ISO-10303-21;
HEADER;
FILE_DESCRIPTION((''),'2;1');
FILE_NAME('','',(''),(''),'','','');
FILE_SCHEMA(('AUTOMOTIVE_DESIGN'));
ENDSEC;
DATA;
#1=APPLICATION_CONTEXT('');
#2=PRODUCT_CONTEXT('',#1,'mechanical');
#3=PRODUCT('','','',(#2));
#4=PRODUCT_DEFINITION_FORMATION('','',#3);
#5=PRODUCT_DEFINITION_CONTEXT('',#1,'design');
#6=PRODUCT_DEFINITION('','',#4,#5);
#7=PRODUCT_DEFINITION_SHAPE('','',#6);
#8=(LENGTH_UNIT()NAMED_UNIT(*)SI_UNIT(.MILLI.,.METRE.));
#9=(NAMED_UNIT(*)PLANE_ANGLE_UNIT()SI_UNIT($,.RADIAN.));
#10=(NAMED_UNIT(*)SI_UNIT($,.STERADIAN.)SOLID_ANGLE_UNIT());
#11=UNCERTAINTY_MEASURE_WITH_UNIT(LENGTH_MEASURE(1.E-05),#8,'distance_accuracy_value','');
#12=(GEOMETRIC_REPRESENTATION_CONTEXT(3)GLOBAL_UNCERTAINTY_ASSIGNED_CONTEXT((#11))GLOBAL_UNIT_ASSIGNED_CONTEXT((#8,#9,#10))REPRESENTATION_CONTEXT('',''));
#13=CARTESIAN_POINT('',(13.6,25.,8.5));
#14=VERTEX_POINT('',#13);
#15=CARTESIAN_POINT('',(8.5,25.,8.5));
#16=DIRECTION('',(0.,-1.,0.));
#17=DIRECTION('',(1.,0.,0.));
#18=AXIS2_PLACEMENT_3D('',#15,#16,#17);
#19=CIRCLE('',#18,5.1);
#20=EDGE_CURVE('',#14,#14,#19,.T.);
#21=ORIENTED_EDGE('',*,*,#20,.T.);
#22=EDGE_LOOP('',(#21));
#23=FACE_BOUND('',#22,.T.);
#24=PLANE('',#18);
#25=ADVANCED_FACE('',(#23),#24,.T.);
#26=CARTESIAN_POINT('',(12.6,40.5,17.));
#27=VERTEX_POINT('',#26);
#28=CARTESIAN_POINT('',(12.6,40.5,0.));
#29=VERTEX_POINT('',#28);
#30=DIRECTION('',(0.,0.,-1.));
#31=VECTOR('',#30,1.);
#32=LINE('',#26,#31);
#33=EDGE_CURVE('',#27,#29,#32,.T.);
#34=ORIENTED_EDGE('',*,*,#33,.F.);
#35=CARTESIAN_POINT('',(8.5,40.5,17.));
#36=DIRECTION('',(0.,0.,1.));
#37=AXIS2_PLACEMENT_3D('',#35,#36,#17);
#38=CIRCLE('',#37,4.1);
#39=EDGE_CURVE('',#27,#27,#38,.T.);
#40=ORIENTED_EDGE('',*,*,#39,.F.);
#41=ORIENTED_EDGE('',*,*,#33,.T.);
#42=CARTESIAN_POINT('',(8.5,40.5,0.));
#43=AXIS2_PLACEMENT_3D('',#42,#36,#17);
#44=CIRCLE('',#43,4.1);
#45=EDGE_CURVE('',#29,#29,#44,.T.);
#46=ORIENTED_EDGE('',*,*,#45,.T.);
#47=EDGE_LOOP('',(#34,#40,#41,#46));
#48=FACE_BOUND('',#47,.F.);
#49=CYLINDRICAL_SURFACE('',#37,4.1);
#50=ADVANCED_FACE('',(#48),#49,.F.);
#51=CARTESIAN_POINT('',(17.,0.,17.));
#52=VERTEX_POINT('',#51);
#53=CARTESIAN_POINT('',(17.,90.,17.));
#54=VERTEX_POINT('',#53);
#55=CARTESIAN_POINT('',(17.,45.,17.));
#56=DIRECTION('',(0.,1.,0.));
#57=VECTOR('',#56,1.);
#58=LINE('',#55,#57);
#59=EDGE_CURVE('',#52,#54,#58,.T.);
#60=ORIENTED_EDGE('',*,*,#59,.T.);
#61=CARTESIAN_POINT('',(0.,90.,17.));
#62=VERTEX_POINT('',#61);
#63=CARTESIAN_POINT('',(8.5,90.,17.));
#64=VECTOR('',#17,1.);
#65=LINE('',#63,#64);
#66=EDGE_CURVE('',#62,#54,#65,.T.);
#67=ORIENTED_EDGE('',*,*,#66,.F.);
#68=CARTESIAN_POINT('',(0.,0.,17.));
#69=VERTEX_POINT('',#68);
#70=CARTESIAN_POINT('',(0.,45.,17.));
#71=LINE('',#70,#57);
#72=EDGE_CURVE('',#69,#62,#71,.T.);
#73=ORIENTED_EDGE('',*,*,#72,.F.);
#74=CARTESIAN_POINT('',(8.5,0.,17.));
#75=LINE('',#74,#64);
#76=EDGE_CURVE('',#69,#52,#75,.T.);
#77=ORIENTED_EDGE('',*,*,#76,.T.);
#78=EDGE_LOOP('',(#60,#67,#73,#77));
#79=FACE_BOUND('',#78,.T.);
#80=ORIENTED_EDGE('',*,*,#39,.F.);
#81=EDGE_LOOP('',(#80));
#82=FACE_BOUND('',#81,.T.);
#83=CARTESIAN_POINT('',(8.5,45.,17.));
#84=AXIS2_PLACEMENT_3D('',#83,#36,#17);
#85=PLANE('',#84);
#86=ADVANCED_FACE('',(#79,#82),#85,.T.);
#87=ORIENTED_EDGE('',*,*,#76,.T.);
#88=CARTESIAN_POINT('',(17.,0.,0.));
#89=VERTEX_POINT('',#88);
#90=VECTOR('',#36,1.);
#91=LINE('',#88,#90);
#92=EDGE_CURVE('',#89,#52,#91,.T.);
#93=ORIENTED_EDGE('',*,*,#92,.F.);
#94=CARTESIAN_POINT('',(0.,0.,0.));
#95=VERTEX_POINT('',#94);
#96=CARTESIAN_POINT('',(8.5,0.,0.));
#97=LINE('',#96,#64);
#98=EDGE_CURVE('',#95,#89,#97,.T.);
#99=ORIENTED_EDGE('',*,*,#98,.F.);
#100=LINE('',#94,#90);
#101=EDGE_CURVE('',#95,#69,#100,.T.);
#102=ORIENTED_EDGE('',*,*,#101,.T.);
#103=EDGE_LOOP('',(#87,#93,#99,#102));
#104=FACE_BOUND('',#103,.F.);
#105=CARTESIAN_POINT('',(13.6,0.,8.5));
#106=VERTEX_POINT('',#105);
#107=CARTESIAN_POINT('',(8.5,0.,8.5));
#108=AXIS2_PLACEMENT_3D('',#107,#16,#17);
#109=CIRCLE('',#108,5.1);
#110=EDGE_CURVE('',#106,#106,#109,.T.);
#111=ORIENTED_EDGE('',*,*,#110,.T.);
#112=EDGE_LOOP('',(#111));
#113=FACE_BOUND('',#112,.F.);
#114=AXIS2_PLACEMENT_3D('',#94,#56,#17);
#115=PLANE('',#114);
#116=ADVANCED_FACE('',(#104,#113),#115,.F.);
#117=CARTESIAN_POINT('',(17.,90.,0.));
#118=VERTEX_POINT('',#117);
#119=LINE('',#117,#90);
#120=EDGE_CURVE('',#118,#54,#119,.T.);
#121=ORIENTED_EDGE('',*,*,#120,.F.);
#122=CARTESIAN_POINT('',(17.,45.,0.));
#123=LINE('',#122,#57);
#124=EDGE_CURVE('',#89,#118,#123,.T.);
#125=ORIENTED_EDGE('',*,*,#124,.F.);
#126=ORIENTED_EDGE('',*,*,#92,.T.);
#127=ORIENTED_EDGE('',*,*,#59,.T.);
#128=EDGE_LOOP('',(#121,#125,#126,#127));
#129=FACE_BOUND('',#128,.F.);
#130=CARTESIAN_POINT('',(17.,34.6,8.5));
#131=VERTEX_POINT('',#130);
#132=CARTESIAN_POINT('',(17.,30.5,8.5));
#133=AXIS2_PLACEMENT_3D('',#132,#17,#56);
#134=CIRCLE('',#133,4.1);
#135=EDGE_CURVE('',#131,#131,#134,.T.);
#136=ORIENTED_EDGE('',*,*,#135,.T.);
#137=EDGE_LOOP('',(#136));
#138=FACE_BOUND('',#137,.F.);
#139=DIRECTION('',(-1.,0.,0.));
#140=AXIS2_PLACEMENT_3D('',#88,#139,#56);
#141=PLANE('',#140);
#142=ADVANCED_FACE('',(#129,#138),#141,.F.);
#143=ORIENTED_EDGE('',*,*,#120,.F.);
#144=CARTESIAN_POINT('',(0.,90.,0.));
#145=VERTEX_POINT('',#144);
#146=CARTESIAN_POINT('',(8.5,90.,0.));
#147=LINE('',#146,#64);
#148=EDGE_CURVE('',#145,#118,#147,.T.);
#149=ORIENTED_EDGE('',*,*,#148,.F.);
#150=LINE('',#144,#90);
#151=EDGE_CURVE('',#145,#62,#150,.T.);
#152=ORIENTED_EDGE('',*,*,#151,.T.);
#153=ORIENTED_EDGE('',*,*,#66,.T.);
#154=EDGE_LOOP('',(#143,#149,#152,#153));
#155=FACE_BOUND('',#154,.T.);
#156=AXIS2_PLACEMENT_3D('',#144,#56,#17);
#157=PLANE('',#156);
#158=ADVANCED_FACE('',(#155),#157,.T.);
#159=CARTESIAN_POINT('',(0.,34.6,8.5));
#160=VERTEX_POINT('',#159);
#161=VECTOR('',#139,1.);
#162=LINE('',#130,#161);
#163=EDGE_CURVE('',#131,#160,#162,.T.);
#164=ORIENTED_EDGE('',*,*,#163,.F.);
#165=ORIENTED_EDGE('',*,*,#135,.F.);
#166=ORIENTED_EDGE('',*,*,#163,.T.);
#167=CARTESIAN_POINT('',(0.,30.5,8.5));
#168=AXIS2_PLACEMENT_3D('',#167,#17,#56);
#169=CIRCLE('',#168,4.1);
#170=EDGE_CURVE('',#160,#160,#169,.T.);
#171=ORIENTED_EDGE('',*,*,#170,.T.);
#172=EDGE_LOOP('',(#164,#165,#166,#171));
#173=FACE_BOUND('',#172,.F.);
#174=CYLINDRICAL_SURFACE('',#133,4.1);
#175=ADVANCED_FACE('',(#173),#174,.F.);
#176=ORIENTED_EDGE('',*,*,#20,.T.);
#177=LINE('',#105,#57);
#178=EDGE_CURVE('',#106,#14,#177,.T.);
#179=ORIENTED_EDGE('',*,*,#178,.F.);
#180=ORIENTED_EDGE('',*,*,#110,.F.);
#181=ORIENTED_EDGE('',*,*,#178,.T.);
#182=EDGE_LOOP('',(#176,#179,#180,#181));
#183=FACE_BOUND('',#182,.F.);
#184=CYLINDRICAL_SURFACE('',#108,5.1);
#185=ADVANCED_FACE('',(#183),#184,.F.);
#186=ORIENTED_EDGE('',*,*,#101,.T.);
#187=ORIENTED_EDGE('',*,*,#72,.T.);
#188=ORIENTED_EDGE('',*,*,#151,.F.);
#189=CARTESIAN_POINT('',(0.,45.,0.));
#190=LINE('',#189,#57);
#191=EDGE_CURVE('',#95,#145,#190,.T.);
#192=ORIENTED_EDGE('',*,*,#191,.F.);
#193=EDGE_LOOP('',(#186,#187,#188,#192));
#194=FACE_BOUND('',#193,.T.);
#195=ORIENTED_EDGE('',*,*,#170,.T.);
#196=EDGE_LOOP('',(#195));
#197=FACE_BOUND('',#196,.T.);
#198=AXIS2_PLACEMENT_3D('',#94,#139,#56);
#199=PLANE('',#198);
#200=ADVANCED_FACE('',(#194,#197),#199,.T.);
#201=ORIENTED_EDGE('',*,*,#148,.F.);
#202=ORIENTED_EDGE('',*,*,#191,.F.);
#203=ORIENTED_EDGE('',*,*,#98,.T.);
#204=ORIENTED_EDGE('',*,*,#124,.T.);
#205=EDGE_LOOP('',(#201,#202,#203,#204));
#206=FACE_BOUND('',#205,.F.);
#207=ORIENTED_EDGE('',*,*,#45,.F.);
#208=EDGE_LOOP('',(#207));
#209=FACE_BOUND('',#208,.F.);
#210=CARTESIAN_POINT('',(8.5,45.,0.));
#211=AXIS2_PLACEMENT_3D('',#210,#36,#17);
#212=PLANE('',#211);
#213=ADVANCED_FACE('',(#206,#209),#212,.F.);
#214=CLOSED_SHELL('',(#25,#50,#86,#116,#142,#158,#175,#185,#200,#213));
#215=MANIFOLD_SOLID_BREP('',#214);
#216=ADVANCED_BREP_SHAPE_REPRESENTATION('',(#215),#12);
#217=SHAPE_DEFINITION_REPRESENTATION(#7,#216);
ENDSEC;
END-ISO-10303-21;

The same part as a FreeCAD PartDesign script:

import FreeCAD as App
import Part
import Sketcher

doc = App.newDocument("Part")
body = doc.addObject("PartDesign::Body", "Body")

sketch1 = body.newObject("Sketcher::SketchObject", "Sketch")
sketch1.AttachmentSupport = (doc.getObject("XY_Plane"), [""])
sketch1.MapMode = "FlatFace"
sketch1.addGeometry(Part.LineSegment(App.Vector(0, 90, 0), App.Vector(0, 0, 0)), False)
sketch1.addGeometry(Part.LineSegment(App.Vector(0, 0, 0), App.Vector(17, 0, 0)), False)
sketch1.addGeometry(Part.LineSegment(App.Vector(17, 0, 0), App.Vector(17, 90, 0)), False)
sketch1.addGeometry(Part.LineSegment(App.Vector(17, 90, 0), App.Vector(0, 90, 0)), False)
sketch1.addConstraint(Sketcher.Constraint("Coincident", 0, 2, 1, 1))
sketch1.addConstraint(Sketcher.Constraint("Coincident", 1, 2, 2, 1))
sketch1.addConstraint(Sketcher.Constraint("Coincident", 2, 2, 3, 1))
sketch1.addConstraint(Sketcher.Constraint("Coincident", 3, 2, 0, 1))
sketch1.addConstraint(Sketcher.Constraint("Vertical", 0))
sketch1.addConstraint(Sketcher.Constraint("Horizontal", 1))
sketch1.addConstraint(Sketcher.Constraint("Vertical", 2))
sketch1.addConstraint(Sketcher.Constraint("Horizontal", 3))
sketch1.addConstraint(Sketcher.Constraint("Coincident", 0, 2, -1, 1))
sketch1.addConstraint(Sketcher.Constraint("DistanceX", 1, 1, 1, 2, 17.0))
sketch1.addConstraint(Sketcher.Constraint("DistanceY", 0, 2, 0, 1, 90.0))
pad1 = body.newObject("PartDesign::Pad", "Pad")
pad1.Profile = sketch1
pad1.Length = 17

sketch2 = body.newObject("Sketcher::SketchObject", "Sketch001")
sketch2.AttachmentSupport = (doc.getObject("XZ_Plane"), [""])
sketch2.MapMode = "FlatFace"
sketch2.addGeometry(Part.Circle(App.Vector(8, 8, 0), App.Vector(0, 0, 1), 5), False)
sketch2.addConstraint(Sketcher.Constraint("Diameter", 0, 10.2))
sketch2.addConstraint(Sketcher.Constraint("DistanceX", -1, 1, 0, 3, 8.5))
sketch2.addConstraint(Sketcher.Constraint("DistanceY", -1, 1, 0, 3, 8.5))
pocket1 = body.newObject("PartDesign::Pocket", "Pocket")
pocket1.Profile = sketch2
pocket1.Length = 25

sketch3 = body.newObject("Sketcher::SketchObject", "Sketch002")
sketch3.AttachmentSupport = (doc.getObject("XY_Plane"), [""])
sketch3.MapMode = "FlatFace"
sketch3.AttachmentOffset = App.Placement(App.Vector(0, 0, 17), App.Rotation())
sketch3.addGeometry(Part.Circle(App.Vector(8.5, 40.5, 0), App.Vector(0, 0, 1), 4.1), False)
sketch3.addConstraint(Sketcher.Constraint("Diameter", 0, 8.2))
sketch3.addConstraint(Sketcher.Constraint("DistanceX", -1, 1, 0, 3, 8.5))
sketch3.addConstraint(Sketcher.Constraint("DistanceY", -1, 1, 0, 3, 40.5))
pocket2 = body.newObject("PartDesign::Pocket", "Pocket001")
pocket2.Profile = sketch3
pocket2.Type = "ThroughAll"

sketch4 = body.newObject("Sketcher::SketchObject", "Sketch003")
sketch4.AttachmentSupport = (doc.getObject("YZ_Plane"), [""])
sketch4.MapMode = "FlatFace"
sketch4.AttachmentOffset = App.Placement(App.Vector(0, 0, 17), App.Rotation())
sketch4.addGeometry(Part.Circle(App.Vector(30.5, 8.5, 0), App.Vector(0, 0, 1), 4.1), False)
sketch4.addConstraint(Sketcher.Constraint("Diameter", 0, 8.2))
sketch4.addConstraint(Sketcher.Constraint("DistanceX", -1, 1, 0, 3, 30.5))
sketch4.addConstraint(Sketcher.Constraint("DistanceY", -1, 1, 0, 3, 8.5))
pocket3 = body.newObject("PartDesign::Pocket", "Pocket002")
pocket3.Profile = sketch4
pocket3.Type = "ThroughAll"

doc.recompute()
